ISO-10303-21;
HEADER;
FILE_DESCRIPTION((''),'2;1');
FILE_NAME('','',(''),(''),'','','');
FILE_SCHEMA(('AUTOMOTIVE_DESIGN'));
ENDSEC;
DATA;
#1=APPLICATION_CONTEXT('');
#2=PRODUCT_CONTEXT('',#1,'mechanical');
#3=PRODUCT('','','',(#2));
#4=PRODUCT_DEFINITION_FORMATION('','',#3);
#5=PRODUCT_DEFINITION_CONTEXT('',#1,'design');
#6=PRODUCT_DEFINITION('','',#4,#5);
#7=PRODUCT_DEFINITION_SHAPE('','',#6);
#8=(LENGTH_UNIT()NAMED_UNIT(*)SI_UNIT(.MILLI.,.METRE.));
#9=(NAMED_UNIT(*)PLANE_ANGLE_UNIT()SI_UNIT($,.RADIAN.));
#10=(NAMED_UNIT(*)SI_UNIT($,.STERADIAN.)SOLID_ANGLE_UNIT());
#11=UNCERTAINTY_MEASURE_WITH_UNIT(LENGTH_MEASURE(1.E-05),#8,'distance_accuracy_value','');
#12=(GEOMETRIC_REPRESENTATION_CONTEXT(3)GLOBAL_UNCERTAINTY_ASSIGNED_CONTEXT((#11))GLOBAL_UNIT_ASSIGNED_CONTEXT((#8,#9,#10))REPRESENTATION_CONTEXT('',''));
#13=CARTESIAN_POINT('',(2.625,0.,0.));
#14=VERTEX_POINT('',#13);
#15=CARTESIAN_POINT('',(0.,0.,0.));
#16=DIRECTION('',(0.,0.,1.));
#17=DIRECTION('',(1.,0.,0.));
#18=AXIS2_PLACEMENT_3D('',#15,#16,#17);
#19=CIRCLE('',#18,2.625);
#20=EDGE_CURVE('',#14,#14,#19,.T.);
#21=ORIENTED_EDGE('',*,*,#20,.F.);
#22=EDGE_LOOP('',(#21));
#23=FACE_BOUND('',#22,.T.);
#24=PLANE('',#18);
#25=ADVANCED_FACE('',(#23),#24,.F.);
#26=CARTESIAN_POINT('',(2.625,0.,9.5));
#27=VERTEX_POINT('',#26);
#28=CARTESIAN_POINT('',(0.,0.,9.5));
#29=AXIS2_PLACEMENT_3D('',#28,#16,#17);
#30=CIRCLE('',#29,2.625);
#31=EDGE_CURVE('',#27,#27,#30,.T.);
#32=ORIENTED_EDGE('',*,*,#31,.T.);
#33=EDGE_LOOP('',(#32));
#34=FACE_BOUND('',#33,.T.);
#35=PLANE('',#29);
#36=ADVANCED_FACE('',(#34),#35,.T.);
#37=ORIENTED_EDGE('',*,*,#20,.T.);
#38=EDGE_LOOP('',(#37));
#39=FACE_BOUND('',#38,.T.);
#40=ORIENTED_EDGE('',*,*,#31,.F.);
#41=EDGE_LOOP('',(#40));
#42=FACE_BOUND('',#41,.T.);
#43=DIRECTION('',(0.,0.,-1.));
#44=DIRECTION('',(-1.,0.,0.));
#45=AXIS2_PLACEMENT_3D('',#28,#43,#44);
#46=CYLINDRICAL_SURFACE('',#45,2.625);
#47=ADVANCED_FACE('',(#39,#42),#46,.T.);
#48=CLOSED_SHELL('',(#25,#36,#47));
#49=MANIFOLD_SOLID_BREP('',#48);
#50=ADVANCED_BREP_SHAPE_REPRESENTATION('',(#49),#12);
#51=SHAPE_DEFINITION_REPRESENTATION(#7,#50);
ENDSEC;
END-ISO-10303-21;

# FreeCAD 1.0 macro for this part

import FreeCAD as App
import Part
import Sketcher

doc = App.newDocument("Part")
body = doc.addObject("PartDesign::Body", "Body")

# Sketch on XY plane
sketch1 = doc.addObject("Sketcher::SketchObject", "Sketch")
body.addObject(sketch1)
sketch1.AttachmentSupport = (doc.XY_Plane, [""])
sketch1.MapMode = "FlatFace"
sketch1.addGeometry(Part.Circle(App.Vector(0, 0, 0), App.Vector(0, 0, 1), 2.6), False)
sketch1.addConstraint([
    Sketcher.Constraint("Coincident", 0, 3, -1, 1),
    Sketcher.Constraint("Diameter", 0, 5.25),
])
pad1 = doc.addObject("PartDesign::Pad", "Pad")
body.addObject(pad1)
pad1.Profile = sketch1
pad1.Length = 9.5

doc.recompute()
